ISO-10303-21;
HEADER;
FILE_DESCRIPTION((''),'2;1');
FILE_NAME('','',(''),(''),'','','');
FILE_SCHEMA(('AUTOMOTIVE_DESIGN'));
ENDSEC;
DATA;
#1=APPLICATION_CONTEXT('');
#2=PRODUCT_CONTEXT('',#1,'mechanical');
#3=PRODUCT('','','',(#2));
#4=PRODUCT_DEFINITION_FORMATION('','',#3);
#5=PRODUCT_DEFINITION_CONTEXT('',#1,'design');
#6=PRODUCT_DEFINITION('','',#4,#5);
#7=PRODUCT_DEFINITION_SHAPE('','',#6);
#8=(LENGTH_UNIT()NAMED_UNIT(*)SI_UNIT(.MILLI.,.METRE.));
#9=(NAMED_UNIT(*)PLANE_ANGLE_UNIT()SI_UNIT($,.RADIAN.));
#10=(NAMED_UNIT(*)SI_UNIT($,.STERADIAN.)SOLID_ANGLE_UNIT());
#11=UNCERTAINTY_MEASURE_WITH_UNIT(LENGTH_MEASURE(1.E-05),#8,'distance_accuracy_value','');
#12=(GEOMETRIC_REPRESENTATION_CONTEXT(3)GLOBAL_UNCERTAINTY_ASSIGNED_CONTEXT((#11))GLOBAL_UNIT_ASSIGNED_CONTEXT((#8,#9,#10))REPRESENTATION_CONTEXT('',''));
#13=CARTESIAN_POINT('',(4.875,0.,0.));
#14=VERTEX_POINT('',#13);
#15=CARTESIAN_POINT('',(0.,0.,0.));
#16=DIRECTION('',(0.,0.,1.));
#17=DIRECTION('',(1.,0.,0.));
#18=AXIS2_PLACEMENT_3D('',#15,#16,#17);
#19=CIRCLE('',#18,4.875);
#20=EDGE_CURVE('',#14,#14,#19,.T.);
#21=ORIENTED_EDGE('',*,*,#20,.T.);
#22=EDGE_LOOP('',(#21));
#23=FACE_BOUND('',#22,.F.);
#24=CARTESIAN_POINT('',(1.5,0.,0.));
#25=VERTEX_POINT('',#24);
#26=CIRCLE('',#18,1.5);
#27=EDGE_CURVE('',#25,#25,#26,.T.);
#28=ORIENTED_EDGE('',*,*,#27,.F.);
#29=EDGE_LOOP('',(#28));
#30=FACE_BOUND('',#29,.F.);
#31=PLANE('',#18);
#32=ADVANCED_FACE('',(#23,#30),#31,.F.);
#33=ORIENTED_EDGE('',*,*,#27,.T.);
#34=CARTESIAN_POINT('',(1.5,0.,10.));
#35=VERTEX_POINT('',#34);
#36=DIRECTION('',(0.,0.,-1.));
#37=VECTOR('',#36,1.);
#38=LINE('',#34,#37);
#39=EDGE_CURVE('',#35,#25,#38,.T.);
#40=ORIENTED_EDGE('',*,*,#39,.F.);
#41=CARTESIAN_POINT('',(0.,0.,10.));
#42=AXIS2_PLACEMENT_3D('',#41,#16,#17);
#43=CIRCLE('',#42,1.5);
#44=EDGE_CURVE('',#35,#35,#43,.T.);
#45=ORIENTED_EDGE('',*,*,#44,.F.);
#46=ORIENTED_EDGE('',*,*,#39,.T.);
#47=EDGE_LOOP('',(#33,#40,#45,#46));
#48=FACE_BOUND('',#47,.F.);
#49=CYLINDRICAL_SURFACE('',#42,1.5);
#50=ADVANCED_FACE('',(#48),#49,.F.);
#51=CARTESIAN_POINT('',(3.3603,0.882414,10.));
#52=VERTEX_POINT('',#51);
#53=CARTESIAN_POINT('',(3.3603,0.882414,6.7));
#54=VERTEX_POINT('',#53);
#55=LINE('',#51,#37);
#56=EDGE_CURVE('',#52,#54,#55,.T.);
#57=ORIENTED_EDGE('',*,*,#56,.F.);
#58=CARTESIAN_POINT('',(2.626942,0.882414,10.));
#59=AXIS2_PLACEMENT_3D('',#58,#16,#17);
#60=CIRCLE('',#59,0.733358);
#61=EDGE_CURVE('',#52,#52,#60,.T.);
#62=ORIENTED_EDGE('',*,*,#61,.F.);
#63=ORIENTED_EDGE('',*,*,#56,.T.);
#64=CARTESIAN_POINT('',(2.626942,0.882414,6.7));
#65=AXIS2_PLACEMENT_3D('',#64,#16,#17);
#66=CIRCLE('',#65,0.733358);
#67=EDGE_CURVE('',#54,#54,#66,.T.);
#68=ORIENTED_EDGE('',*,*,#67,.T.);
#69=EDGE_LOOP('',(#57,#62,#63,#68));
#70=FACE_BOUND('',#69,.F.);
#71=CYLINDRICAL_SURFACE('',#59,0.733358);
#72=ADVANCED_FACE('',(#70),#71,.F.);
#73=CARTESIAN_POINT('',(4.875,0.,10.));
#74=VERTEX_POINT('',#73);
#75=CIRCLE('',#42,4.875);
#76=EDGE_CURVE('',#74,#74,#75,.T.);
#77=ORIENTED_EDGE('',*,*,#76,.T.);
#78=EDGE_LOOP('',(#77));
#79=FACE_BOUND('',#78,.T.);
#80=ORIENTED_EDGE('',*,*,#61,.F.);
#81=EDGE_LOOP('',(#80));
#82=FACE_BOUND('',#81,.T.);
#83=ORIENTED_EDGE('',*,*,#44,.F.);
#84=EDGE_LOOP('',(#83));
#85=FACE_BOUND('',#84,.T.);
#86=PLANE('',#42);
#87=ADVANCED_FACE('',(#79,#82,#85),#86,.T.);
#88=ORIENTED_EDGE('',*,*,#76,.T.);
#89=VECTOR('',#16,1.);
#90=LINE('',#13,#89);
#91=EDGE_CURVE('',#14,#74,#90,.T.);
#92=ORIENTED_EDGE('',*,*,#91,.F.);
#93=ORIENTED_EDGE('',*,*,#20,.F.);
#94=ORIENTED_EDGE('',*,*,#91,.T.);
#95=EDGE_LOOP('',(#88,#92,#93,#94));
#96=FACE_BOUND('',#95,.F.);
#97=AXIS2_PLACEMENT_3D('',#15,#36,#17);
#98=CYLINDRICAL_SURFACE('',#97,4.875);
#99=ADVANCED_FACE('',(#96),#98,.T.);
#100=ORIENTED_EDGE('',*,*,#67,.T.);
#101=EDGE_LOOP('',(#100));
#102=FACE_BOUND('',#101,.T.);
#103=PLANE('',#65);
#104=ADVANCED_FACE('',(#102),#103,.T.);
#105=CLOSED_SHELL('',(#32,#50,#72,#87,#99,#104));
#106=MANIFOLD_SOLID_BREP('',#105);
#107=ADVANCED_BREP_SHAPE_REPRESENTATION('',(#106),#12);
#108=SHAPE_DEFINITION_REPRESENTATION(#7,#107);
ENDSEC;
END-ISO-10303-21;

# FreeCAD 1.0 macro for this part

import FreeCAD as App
import Part
import Sketcher

V = App.Vector
Q = App.Units.Quantity

doc = App.newDocument("Part")
body = doc.addObject("PartDesign::Body", "Body")

# Sketch on XY plane
sketch1 = body.newObject("Sketcher::SketchObject", "Sketch")
sketch1.AttachmentSupport = (doc.getObject("XY_Plane"), [""])
sketch1.MapMode = "FlatFace"
sketch1.addGeometry(Part.Circle(V(0, 0, 0), V(0, 0, 1), 4.875), False)
sketch1.addConstraint([
    Sketcher.Constraint("Coincident", 0, 3, -1, 1),
    Sketcher.Constraint("Diameter", 0, Q("9.75 mm")),
])
pad1 = body.newObject("PartDesign::Pad", "Pad")
pad1.Profile = sketch1
pad1.Length = 10

# Sketch on XY plane
sketch2 = body.newObject("Sketcher::SketchObject", "Sketch001")
sketch2.AttachmentSupport = (doc.getObject("XY_Plane"), [""])
sketch2.MapMode = "FlatFace"
sketch2.AttachmentOffset = App.Placement(V(0, 0, 10), App.Rotation())
sketch2.addGeometry(Part.Circle(V(0, 0, 0), V(0, 0, 1), 1.5), False)
sketch2.addConstraint([
    Sketcher.Constraint("Coincident", 0, 3, -1, 1),
    Sketcher.Constraint("Diameter", 0, Q("3 mm")),
])
pocket1 = body.newObject("PartDesign::Pocket", "Pocket")
pocket1.Profile = sketch2
pocket1.Length = 10

# Sketch on XY plane
sketch3 = body.newObject("Sketcher::SketchObject", "Sketch002")
sketch3.AttachmentSupport = (doc.getObject("XY_Plane"), [""])
sketch3.MapMode = "FlatFace"
sketch3.AttachmentOffset = App.Placement(V(0, 0, 10), App.Rotation())
sketch3.addGeometry(Part.Circle(V(2.626942, 0.882414, 0), V(0, 0, 1), 0.733358), False)
sketch3.addConstraint([
    Sketcher.Constraint("Diameter", 0, Q("1.466716 mm")),
    Sketcher.Constraint("DistanceX", -1, 1, 0, 3, Q("2.626942 mm")),
    Sketcher.Constraint("DistanceY", -1, 1, 0, 3, Q("0.882414 mm")),
])
pocket2 = body.newObject("PartDesign::Pocket", "Pocket001")
pocket2.Profile = sketch3
pocket2.Length = 3.3

doc.recompute()
